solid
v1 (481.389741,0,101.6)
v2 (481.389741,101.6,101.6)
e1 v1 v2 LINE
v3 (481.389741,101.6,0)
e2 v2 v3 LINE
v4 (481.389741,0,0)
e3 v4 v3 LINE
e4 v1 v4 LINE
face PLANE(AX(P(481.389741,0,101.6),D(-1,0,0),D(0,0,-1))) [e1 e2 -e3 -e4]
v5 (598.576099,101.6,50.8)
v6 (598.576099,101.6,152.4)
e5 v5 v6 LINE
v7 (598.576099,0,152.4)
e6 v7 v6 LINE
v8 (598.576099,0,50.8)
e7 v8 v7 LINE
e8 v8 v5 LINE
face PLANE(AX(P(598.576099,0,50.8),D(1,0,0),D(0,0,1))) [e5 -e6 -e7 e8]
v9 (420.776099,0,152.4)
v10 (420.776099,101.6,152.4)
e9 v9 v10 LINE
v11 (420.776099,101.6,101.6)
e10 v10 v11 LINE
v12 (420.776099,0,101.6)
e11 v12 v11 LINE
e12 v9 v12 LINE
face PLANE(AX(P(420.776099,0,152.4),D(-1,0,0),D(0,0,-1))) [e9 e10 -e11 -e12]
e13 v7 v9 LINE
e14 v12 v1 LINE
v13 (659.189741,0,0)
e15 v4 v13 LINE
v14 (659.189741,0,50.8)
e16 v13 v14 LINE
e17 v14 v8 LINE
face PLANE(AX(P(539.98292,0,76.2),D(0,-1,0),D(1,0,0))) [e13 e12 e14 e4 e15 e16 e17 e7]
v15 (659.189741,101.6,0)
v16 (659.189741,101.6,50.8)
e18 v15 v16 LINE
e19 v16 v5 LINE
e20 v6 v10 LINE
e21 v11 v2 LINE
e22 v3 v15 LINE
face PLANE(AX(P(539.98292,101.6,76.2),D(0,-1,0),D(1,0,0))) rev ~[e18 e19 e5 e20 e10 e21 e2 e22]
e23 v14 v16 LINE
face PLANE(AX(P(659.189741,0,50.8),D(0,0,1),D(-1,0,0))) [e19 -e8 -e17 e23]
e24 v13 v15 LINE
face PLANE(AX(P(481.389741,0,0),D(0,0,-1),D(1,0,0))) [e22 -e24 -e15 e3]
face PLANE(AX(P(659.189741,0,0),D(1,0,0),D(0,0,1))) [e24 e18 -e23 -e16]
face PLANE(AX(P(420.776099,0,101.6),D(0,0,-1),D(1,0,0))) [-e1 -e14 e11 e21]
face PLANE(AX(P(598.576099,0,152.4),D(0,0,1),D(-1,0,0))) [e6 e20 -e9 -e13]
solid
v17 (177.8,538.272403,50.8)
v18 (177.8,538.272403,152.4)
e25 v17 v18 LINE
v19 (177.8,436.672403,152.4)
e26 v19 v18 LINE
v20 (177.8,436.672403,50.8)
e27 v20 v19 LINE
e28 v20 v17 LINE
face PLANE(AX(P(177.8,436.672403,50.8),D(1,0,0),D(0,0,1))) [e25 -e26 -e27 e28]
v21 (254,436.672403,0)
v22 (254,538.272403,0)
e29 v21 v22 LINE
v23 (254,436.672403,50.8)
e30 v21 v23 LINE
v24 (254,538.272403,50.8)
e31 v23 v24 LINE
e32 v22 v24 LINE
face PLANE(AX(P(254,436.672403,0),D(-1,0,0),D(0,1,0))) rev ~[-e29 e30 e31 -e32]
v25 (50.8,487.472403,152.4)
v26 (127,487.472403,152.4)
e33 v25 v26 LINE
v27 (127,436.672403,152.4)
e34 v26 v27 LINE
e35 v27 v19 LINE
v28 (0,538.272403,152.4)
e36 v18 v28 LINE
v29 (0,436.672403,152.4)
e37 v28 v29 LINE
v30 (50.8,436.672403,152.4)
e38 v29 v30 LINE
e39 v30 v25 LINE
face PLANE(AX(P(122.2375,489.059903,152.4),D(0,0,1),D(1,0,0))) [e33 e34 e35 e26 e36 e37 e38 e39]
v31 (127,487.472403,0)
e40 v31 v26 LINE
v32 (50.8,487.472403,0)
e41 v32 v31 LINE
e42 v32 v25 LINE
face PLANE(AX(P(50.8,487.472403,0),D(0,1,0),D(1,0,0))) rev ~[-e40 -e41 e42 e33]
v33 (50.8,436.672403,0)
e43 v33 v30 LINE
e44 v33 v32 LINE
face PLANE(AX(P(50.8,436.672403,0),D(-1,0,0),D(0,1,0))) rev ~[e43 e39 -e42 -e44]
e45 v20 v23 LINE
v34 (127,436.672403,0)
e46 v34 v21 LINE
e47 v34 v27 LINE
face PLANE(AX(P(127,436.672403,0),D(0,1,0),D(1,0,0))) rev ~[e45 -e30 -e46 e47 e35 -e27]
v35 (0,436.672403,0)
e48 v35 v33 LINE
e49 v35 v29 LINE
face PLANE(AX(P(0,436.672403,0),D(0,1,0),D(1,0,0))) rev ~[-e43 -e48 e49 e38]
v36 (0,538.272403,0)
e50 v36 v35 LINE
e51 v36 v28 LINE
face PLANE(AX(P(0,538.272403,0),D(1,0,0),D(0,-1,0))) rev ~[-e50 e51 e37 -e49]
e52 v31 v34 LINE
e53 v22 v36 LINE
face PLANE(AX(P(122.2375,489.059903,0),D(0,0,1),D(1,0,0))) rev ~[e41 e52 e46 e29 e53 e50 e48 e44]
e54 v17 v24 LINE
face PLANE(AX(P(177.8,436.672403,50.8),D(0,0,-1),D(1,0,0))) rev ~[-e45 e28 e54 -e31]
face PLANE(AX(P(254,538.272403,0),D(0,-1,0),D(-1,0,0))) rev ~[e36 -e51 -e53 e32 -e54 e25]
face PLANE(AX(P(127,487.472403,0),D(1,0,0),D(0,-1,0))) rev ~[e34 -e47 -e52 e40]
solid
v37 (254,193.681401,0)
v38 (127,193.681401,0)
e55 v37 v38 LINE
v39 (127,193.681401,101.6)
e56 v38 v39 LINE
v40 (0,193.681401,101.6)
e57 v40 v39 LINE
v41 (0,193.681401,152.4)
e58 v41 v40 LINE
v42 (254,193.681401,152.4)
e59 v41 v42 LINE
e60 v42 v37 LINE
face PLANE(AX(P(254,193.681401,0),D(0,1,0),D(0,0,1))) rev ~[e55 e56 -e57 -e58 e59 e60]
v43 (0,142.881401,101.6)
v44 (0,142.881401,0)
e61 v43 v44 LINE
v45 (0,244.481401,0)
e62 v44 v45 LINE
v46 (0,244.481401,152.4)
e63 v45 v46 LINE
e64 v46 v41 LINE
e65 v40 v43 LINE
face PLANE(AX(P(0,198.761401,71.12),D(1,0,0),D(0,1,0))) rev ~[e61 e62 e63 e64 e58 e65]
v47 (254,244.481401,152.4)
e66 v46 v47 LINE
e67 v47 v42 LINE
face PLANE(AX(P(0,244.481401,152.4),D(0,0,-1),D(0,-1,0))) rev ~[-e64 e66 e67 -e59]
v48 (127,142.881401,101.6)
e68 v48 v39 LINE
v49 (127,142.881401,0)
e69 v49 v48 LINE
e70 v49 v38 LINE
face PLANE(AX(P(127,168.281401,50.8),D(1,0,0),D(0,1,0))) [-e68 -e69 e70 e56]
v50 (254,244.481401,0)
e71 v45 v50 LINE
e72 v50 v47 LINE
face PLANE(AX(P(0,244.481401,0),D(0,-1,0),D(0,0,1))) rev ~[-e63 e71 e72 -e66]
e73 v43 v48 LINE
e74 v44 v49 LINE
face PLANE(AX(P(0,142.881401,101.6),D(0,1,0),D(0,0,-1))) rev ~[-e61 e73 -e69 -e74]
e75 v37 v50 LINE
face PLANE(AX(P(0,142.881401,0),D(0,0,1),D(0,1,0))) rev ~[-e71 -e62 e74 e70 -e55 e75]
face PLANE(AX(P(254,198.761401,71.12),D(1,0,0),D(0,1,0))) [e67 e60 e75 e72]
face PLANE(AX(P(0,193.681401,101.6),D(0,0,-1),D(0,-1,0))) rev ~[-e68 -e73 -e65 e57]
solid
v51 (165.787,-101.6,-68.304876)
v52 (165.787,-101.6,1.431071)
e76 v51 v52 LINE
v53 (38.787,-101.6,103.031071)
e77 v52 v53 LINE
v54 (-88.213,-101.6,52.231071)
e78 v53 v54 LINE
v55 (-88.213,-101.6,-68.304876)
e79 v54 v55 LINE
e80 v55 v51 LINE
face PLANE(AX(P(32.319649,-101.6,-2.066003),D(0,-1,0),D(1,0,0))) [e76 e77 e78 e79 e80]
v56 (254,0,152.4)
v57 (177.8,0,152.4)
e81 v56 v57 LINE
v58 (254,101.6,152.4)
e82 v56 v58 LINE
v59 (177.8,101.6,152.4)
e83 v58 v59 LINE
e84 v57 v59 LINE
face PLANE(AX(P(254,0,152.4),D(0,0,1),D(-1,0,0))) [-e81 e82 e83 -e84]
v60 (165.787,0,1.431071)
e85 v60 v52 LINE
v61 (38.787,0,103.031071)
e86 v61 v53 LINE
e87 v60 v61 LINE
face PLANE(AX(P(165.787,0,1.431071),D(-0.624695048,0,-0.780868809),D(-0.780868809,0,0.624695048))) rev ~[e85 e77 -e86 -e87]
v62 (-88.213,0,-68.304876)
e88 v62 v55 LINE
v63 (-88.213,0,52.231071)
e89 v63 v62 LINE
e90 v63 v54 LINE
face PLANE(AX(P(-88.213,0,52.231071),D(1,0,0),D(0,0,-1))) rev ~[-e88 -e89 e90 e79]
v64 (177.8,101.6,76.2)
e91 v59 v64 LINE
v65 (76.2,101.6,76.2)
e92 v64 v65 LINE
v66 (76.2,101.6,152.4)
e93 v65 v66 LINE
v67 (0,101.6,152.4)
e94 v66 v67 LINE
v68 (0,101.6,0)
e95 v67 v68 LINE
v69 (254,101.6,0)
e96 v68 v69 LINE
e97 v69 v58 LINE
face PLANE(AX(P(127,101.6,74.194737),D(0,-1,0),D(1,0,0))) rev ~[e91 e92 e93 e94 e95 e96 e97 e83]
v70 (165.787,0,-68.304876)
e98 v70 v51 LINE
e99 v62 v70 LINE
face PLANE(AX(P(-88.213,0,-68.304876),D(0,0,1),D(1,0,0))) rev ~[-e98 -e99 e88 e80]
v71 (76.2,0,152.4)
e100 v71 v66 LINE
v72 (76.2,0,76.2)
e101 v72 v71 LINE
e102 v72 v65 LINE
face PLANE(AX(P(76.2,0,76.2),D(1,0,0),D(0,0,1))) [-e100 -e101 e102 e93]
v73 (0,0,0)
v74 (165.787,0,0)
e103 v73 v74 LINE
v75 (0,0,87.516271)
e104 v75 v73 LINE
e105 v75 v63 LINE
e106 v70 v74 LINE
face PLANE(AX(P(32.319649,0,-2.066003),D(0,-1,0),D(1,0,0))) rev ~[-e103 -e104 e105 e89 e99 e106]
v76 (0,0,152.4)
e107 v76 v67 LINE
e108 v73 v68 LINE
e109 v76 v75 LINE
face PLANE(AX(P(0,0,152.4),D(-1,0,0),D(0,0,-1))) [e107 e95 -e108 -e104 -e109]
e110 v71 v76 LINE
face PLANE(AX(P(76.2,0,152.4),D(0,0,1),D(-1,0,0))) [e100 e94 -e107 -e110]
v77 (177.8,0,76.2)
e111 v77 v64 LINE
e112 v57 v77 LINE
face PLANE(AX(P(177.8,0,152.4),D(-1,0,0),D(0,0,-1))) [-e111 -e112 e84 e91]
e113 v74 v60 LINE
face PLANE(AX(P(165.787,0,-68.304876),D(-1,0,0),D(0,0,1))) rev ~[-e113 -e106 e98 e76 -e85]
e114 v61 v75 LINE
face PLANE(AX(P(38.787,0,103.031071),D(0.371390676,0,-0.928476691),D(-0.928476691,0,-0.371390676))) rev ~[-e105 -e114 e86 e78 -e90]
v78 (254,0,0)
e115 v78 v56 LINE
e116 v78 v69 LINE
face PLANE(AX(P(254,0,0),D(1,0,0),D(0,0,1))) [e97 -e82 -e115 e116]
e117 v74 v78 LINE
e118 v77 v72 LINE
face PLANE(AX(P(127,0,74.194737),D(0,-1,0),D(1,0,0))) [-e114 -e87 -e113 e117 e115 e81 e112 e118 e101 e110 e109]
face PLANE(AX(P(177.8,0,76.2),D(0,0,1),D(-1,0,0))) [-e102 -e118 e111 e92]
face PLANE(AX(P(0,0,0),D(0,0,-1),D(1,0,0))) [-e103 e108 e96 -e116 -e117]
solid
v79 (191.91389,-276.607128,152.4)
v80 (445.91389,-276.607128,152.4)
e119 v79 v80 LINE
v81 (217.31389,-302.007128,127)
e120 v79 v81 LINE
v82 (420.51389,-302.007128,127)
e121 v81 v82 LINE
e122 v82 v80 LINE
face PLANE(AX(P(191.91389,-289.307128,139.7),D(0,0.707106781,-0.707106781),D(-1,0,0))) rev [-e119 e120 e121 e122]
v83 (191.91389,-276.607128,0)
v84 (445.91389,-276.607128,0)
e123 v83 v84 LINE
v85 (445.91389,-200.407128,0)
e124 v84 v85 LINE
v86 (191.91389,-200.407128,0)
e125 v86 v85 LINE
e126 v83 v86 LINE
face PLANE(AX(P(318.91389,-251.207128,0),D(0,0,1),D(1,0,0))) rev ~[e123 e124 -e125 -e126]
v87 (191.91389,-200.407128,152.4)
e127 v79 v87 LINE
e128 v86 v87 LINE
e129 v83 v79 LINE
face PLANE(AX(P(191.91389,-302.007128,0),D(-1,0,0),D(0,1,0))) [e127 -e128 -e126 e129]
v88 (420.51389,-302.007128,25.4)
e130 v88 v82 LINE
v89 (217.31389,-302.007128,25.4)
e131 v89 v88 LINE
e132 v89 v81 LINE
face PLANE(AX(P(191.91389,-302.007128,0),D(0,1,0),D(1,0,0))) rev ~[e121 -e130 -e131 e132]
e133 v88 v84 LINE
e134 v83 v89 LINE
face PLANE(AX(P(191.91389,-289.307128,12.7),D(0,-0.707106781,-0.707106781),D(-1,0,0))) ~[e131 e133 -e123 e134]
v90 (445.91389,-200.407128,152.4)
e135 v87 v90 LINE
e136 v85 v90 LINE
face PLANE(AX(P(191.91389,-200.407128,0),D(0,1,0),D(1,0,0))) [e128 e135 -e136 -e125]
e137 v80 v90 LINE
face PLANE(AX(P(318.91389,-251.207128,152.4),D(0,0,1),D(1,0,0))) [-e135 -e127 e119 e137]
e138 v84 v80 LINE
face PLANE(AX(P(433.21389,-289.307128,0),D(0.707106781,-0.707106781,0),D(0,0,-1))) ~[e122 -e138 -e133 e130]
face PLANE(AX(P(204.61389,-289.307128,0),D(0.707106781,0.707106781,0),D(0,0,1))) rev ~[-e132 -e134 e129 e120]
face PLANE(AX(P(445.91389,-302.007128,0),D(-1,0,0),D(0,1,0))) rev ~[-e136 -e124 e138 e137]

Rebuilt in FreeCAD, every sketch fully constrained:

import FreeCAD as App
import Part
import Sketcher

V = App.Vector
Q = App.Units.Quantity


def edges_at(feature, points):
    """Names of the edges that pass closest to the given points."""
    edges = feature.Shape.Edges
    near = lambda p: min(range(len(edges)), key=lambda i: edges[i].distToShape(Part.Vertex(*p))[0])
    return sorted({f"Edge{near(p) + 1}" for p in points})


def add_polygon(sketch, points):
    """Adds a closed chain of lines whose ends are joined by coincident constraints."""
    first, n = sketch.GeometryCount, len(points)
    for a, b in zip(points, points[1:] + points[:1]):
        sketch.addGeometry(Part.LineSegment(App.Vector(*a, 0), App.Vector(*b, 0)), False)
    for i in range(n):
        sketch.addConstraint(Sketcher.Constraint("Coincident", first + i, 2, first + (i + 1) % n, 1))

doc = App.newDocument("Part")
body = doc.addObject("PartDesign::Body", "Body")

sketch1 = body.newObject("Sketcher::SketchObject", "Sketch")
sketch1.AttachmentSupport = (doc.getObject("XZ_Plane"), [""])
sketch1.MapMode = "FlatFace"
add_polygon(sketch1, [(0, 152), (0, 0), (254, 0), (254, 152), (178, 152), (178, 76), (76, 76), (76, 152)])
sketch1.addConstraint([
    Sketcher.Constraint("Vertical", 0),
    Sketcher.Constraint("Horizontal", 1),
    Sketcher.Constraint("Vertical", 2),
    Sketcher.Constraint("Horizontal", 3),
    Sketcher.Constraint("Vertical", 4),
    Sketcher.Constraint("Horizontal", 5),
    Sketcher.Constraint("Vertical", 6),
    Sketcher.Constraint("Horizontal", 7),
    Sketcher.Constraint("Coincident", 0, 2, -1, 1),
    Sketcher.Constraint("Horizontal", 3, 2, 6, 2),
    Sketcher.Constraint("Equal", 3, 7),
    Sketcher.Constraint("Equal", 7, 4),
    Sketcher.Constraint("DistanceX", 1, 1, 1, 2, Q("10 in")),
    Sketcher.Constraint("DistanceX", 3, 2, 3, 1, Q("3 in")),
    Sketcher.Constraint("DistanceY", 0, 2, 0, 1, Q("6 in")),
])
pad1 = body.newObject("PartDesign::Pad", "Pad")
pad1.Profile = sketch1
pad1.Length = Q("4 in")
pad1.Reversed = True

sketch2 = body.newObject("Sketcher::SketchObject", "Sketch001")
sketch2.AttachmentSupport = (doc.getObject("XZ_Plane"), [""])
sketch2.MapMode = "FlatFace"
add_polygon(sketch2, [(-88, 52), (-88, -68), (166, -68), (166, 1), (39, 103)])
sketch2.addConstraint([
    Sketcher.Constraint("Vertical", 0),
    Sketcher.Constraint("Horizontal", 1),
    Sketcher.Constraint("Vertical", 2),
    Sketcher.Constraint("DistanceX", 1, 1, 1, 2, Q("10 in")),
    Sketcher.Constraint("DistanceX", 3, 2, 2, 2, Q("5 in")),
    Sketcher.Constraint("DistanceY", 2, 2, 3, 2, Q("4 in")),
    Sketcher.Constraint("DistanceY", 4, 2, 3, 2, Q("2 in")),
    Sketcher.Constraint("DistanceX", 0, 2, -1, 1, 88.213),
    Sketcher.Constraint("DistanceY", 0, 2, 0, 1, 120.535947),
    Sketcher.Constraint("DistanceY", -1, 1, 2, 2, 1.431071),
])
pad2 = body.newObject("PartDesign::Pad", "Pad001")
pad2.Profile = sketch2
pad2.Length = Q("4 in")
body2 = doc.addObject("PartDesign::Body", "Body001")

sketch3 = body2.newObject("Sketcher::SketchObject", "Sketch002")
sketch3.AttachmentSupport = (doc.getObject("YZ_Plane001"), [""])
sketch3.MapMode = "FlatFace"
add_polygon(sketch3, [(143, 0), (244, 0), (244, 152), (194, 152), (194, 102), (143, 102)])
sketch3.addConstraint([
    Sketcher.Constraint("Horizontal", 0),
    Sketcher.Constraint("Vertical", 1),
    Sketcher.Constraint("Horizontal", 2),
    Sketcher.Constraint("Vertical", 3),
    Sketcher.Constraint("Horizontal", 4),
    Sketcher.Constraint("Vertical", 5),
    Sketcher.Constraint("PointOnObject", 0, 2, -1),
    Sketcher.Constraint("Equal", 2, 4),
    Sketcher.Constraint("Equal", 4, 3),
    Sketcher.Constraint("Equal", 0, 5),
    Sketcher.Constraint("DistanceX", 0, 1, 0, 2, Q("4 in")),
    Sketcher.Constraint("DistanceX", -1, 1, 0, 2, 244.481401),
])
pad3 = body2.newObject("PartDesign::Pad", "Pad002")
pad3.Profile = sketch3
pad3.Length = Q("10 in")

sketch4 = body2.newObject("Sketcher::SketchObject", "Sketch003")
sketch4.AttachmentSupport = (doc.getObject("YZ_Plane001"), [""])
sketch4.MapMode = "FlatFace"
sketch4.AttachmentOffset = App.Placement(V(0, 0, 10 * 25.4), App.Rotation())
add_polygon(sketch4, [(143, 102), (143, 0), (194, 0), (194, 102)])
sketch4.addConstraint([
    Sketcher.Constraint("Vertical", 0),
    Sketcher.Constraint("Horizontal", 1),
    Sketcher.Constraint("Vertical", 2),
    Sketcher.Constraint("Horizontal", 3),
    Sketcher.Constraint("PointOnObject", 0, 2, -1),
    Sketcher.Constraint("DistanceX", 1, 1, 1, 2, Q("2 in")),
    Sketcher.Constraint("DistanceY", 0, 2, 0, 1, Q("4 in")),
    Sketcher.Constraint("DistanceX", -1, 1, 0, 2, 142.881401),
])
pocket1 = body2.newObject("PartDesign::Pocket", "Pocket")
pocket1.Profile = sketch4
pocket1.Length = Q("5 in")
body3 = doc.addObject("PartDesign::Body", "Body002")

sketch5 = body3.newObject("Sketcher::SketchObject", "Sketch004")
sketch5.AttachmentSupport = (doc.getObject("XY_Plane002"), [""])
sketch5.MapMode = "FlatFace"
add_polygon(sketch5, [(0, 538), (0, 437), (51, 437), (51, 487), (127, 487), (127, 437), (254, 437), (254, 538)])
sketch5.addConstraint([
    Sketcher.Constraint("Vertical", 0),
    Sketcher.Constraint("Horizontal", 1),
    Sketcher.Constraint("Vertical", 2),
    Sketcher.Constraint("Horizontal", 3),
    Sketcher.Constraint("Vertical", 4),
    Sketcher.Constraint("Horizontal", 5),
    Sketcher.Constraint("Vertical", 6),
    Sketcher.Constraint("Horizontal", 7),
    Sketcher.Constraint("PointOnObject", 0, 2, -2),
    Sketcher.Constraint("Horizontal", 1, 2, 4, 2),
    Sketcher.Constraint("Equal", 1, 2),
    Sketcher.Constraint("DistanceX", 1, 1, 1, 2, Q("2 in")),
    Sketcher.Constraint("DistanceX", 3, 1, 3, 2, Q("3 in")),
    Sketcher.Constraint("DistanceX", 5, 1, 5, 2, Q("5 in")),
    Sketcher.Constraint("DistanceY", 0, 2, 0, 1, Q("4 in")),
    Sketcher.Constraint("DistanceY", -1, 1, 0, 2, 436.672403),
])
pad4 = body3.newObject("PartDesign::Pad", "Pad003")
pad4.Profile = sketch5
pad4.Length = Q("6 in")

sketch6 = body3.newObject("Sketcher::SketchObject", "Sketch005")
sketch6.AttachmentSupport = (doc.getObject("XZ_Plane002"), [""])
sketch6.MapMode = "FlatFace"
sketch6.AttachmentOffset = App.Placement(V(0, 0, -436.672403), App.Rotation())
add_polygon(sketch6, [(178, 152), (178, 51), (254, 51), (254, 152)])
sketch6.addConstraint([
    Sketcher.Constraint("Vertical", 0),
    Sketcher.Constraint("Horizontal", 1),
    Sketcher.Constraint("Vertical", 2),
    Sketcher.Constraint("Horizontal", 3),
    Sketcher.Constraint("DistanceX", 1, 1, 1, 2, Q("3 in")),
    Sketcher.Constraint("DistanceY", 0, 2, 0, 1, Q("4 in")),
    Sketcher.Constraint("DistanceX", -1, 1, 0, 2, Q("7 in")),
    Sketcher.Constraint("DistanceY", -1, 1, 0, 2, Q("2 in")),
])
pocket2 = body3.newObject("PartDesign::Pocket", "Pocket001")
pocket2.Profile = sketch6
pocket2.Length = Q("4 in")
body4 = doc.addObject("PartDesign::Body", "Body003")

sketch7 = body4.newObject("Sketcher::SketchObject", "Sketch006")
sketch7.AttachmentSupport = (doc.getObject("XZ_Plane003"), [""])
sketch7.MapMode = "FlatFace"
add_polygon(sketch7, [(481, 102), (481, 0), (659, 0), (659, 51), (599, 51), (599, 152), (421, 152), (421, 102)])
sketch7.addConstraint([
    Sketcher.Constraint("Vertical", 0),
    Sketcher.Constraint("Horizontal", 1),
    Sketcher.Constraint("Vertical", 2),
    Sketcher.Constraint("Horizontal", 3),
    Sketcher.Constraint("Vertical", 4),
    Sketcher.Constraint("Horizontal", 5),
    Sketcher.Constraint("Vertical", 6),
    Sketcher.Constraint("Horizontal", 7),
    Sketcher.Constraint("PointOnObject", 0, 2, -1),
    Sketcher.Constraint("Equal", 1, 5),
    Sketcher.Constraint("Equal", 0, 4),
    Sketcher.Constraint("DistanceX", 1, 1, 1, 2, Q("7 in")),
    Sketcher.Constraint("DistanceY", 0, 2, 0, 1, Q("4 in")),
    Sketcher.Constraint("DistanceY", 2, 1, 2, 2, Q("2 in")),
    Sketcher.Constraint("DistanceX", -1, 1, 3, 2, 598.576099),
    Sketcher.Constraint("DistanceX", 3, 2, 3, 1, 60.613642),
])
pad5 = body4.newObject("PartDesign::Pad", "Pad004")
pad5.Profile = sketch7
pad5.Length = Q("4 in")
pad5.Reversed = True
body5 = doc.addObject("PartDesign::Body", "Body004")

sketch8 = body5.newObject("Sketcher::SketchObject", "Sketch007")
sketch8.AttachmentSupport = (doc.getObject("XY_Plane004"), [""])
sketch8.MapMode = "FlatFace"
add_polygon(sketch8, [(192, -200), (192, -302), (446, -302), (446, -200)])
sketch8.addConstraint([
    Sketcher.Constraint("Vertical", 0),
    Sketcher.Constraint("Horizontal", 1),
    Sketcher.Constraint("Vertical", 2),
    Sketcher.Constraint("Horizontal", 3),
    Sketcher.Constraint("DistanceX", 1, 1, 1, 2, Q("10 in")),
    Sketcher.Constraint("DistanceY", 0, 2, 0, 1, Q("4 in")),
    Sketcher.Constraint("DistanceX", -1, 1, 0, 2, 191.91389),
    Sketcher.Constraint("DistanceY", 0, 2, -1, 1, 302.007128),
])
pad6 = body5.newObject("PartDesign::Pad", "Pad005")
pad6.Profile = sketch8
pad6.Length = Q("6 in")
doc.recompute()

chamfer = body5.newObject("PartDesign::Chamfer", "Chamfer")
chamfer.Base = (pad6, edges_at(pad6, [
    (191.914, -302.007, 76.2),
    (445.914, -302.007, 76.2),
    (318.914, -302.007, 0),
    (318.914, -302.007, 152.4),
]))
chamfer.Size = Q("1 in")

doc.recompute()
